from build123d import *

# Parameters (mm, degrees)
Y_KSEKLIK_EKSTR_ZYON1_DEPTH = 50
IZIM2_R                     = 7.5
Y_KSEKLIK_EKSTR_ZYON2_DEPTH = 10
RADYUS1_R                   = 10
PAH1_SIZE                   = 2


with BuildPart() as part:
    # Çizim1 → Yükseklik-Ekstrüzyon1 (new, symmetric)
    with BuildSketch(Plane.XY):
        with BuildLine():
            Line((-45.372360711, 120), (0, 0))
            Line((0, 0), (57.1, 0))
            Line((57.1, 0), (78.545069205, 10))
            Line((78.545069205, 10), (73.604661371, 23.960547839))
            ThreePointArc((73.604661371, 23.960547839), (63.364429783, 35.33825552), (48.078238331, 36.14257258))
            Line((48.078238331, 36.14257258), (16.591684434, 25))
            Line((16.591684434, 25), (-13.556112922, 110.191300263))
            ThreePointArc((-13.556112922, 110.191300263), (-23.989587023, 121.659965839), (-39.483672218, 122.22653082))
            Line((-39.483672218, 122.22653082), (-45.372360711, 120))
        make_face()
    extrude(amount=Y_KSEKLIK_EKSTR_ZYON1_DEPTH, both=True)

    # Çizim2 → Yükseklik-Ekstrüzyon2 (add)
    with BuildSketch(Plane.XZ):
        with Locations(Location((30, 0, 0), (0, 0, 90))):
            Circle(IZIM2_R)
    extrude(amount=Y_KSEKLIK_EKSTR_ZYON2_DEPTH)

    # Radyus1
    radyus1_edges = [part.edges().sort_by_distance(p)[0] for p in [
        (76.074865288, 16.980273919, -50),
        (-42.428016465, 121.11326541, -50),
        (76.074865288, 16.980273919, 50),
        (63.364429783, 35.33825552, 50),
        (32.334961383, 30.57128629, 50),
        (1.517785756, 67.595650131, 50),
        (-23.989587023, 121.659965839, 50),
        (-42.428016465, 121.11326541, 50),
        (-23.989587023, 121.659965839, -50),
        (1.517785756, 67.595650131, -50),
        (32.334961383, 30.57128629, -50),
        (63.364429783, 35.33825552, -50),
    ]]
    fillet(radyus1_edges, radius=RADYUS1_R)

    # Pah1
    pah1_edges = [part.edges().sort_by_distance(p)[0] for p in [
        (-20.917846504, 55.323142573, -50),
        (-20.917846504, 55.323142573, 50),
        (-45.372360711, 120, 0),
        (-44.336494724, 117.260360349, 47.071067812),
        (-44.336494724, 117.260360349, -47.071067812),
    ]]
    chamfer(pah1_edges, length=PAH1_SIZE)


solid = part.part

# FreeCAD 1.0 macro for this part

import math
import FreeCAD as App
import Part
import Sketcher
Q = App.Units.Quantity


def edges_at(feature, points):
    """Names of the edges that pass closest to the given points."""
    edges = feature.Shape.Edges
    near = lambda p: min(range(len(edges)), key=lambda i: edges[i].distToShape(Part.Vertex(*p))[0])
    return sorted({f"Edge{near(p) + 1}" for p in points})

doc = App.newDocument("Part")
body = doc.addObject("PartDesign::Body", "Body")

# Sketch on XY plane
sketch1 = body.newObject("Sketcher::SketchObject", "Sketch")
sketch1.AttachmentSupport = (doc.getObject("XY_Plane"), [""])
sketch1.MapMode = "FlatFace"
sketch1.addGeometry(Part.LineSegment(App.Vector(-45, 120, 0), App.Vector(0, 0, 0)), False)
sketch1.addGeometry(Part.LineSegment(App.Vector(0, 0, 0), App.Vector(57, 0, 0)), False)
sketch1.addGeometry(Part.LineSegment(App.Vector(57, 0, 0), App.Vector(79, 10, 0)), False)
sketch1.addGeometry(Part.LineSegment(App.Vector(79, 10, 0), App.Vector(74, 24, 0)), False)
sketch1.addGeometry(Part.ArcOfCircle(Part.Circle(App.Vector(55, 17, 0), App.Vector(0, 0, 1), 20), math.radians(19), math.radians(109)), False)
sketch1.addGeometry(Part.LineSegment(App.Vector(48, 36, 0), App.Vector(17, 25, 0)), False)
sketch1.addGeometry(Part.LineSegment(App.Vector(17, 25, 0), App.Vector(-14, 110, 0)), False)
sketch1.addGeometry(Part.ArcOfCircle(Part.Circle(App.Vector(-32, 104, 0), App.Vector(0, 0, 1), 20), math.radians(19), math.radians(111)), False)
sketch1.addGeometry(Part.LineSegment(App.Vector(-39, 122, 0), App.Vector(-45, 120, 0)), False)
sketch1.addConstraint(Sketcher.Constraint("Coincident", 0, 2, 1, 1))
sketch1.addConstraint(Sketcher.Constraint("Coincident", 1, 2, 2, 1))
sketch1.addConstraint(Sketcher.Constraint("Coincident", 2, 2, 3, 1))
sketch1.addConstraint(Sketcher.Constraint("Tangent", 3, 2, 4, 1))
sketch1.addConstraint(Sketcher.Constraint("Tangent", 4, 2, 5, 1))
sketch1.addConstraint(Sketcher.Constraint("Coincident", 5, 2, 6, 1))
sketch1.addConstraint(Sketcher.Constraint("Tangent", 6, 2, 7, 1))
sketch1.addConstraint(Sketcher.Constraint("Tangent", 7, 2, 8, 1))
sketch1.addConstraint(Sketcher.Constraint("Coincident", 8, 2, 0, 1))
sketch1.addConstraint(Sketcher.Constraint("Horizontal", 1))
sketch1.addConstraint(Sketcher.Constraint("Coincident", 0, 2, -1, 1))
sketch1.addConstraint(Sketcher.Constraint("Equal", 4, 7))
sketch1.addConstraint(Sketcher.Constraint("Perpendicular", 3, 5))
sketch1.addConstraint(Sketcher.Constraint("Perpendicular", 5, 6))
sketch1.addConstraint(Sketcher.Constraint("Perpendicular", 0, 8))
sketch1.addConstraint(Sketcher.Constraint("Radius", 4, 20.0))
sketch1.addConstraint(Sketcher.Constraint("Angle", 2, Q("25 deg")))
sketch1.addConstraint(Sketcher.Constraint("DistanceX", 1, 1, 1, 2, 57.1))
sketch1.addConstraint(Sketcher.Constraint("DistanceY", -1, 1, 2, 2, 10.0))
sketch1.addConstraint(Sketcher.Constraint("DistanceY", -1, 1, 5, 2, 25.0))
sketch1.addConstraint(Sketcher.Constraint("DistanceY", -1, 1, 8, 2, 120.0))
sketch1.addConstraint(Sketcher.Constraint("Distance", 5, 33.4))
sketch1.addConstraint(Sketcher.Constraint("DistanceX", 7, 3, 3, 2, 106.014998))
sketch1.addConstraint(Sketcher.Constraint("DistanceY", -1, 1, 7, 3, 103.519101))
pad1 = body.newObject("PartDesign::Pad", "Pad")
pad1.Profile = sketch1
pad1.Length = 100
pad1.Midplane = True

# Sketch on XZ plane
sketch2 = body.newObject("Sketcher::SketchObject", "Sketch001")
sketch2.AttachmentSupport = (doc.getObject("XZ_Plane"), [""])
sketch2.MapMode = "FlatFace"
sketch2.addGeometry(Part.Circle(App.Vector(30, 0, 0), App.Vector(0, 0, 1), 8), False)
sketch2.addConstraint(Sketcher.Constraint("PointOnObject", 0, 3, -1))
sketch2.addConstraint(Sketcher.Constraint("Diameter", 0, 15.0))
sketch2.addConstraint(Sketcher.Constraint("DistanceX", -1, 1, 0, 3, 30.0))
pad2 = body.newObject("PartDesign::Pad", "Pad001")
pad2.Profile = sketch2
pad2.Length = 10
doc.recompute()

fillet = body.newObject("PartDesign::Fillet", "Fillet")
fillet.Base = (pad2, edges_at(pad2, [
    (76.075, 16.98, -50),
    (-42.428, 121.113, -50),
    (76.075, 16.98, 50),
    (63.364, 35.338, 50),
    (32.335, 30.571, 50),
    (1.518, 67.596, 50),
    (-23.99, 121.66, 50),
    (-42.428, 121.113, 50),
    (-23.99, 121.66, -50),
    (1.518, 67.596, -50),
    (32.335, 30.571, -50),
    (63.364, 35.338, -50),
]))
fillet.Radius = 10
doc.recompute()

chamfer = body.newObject("PartDesign::Chamfer", "Chamfer")
chamfer.Base = (fillet, edges_at(fillet, [
    (-20.918, 55.323, -50),
    (-20.918, 55.323, 50),
    (-45.372, 120, 0),
    (-44.336, 117.26, 47.071),
    (-44.336, 117.26, -47.071),
]))
chamfer.Size = 2

doc.recompute()
